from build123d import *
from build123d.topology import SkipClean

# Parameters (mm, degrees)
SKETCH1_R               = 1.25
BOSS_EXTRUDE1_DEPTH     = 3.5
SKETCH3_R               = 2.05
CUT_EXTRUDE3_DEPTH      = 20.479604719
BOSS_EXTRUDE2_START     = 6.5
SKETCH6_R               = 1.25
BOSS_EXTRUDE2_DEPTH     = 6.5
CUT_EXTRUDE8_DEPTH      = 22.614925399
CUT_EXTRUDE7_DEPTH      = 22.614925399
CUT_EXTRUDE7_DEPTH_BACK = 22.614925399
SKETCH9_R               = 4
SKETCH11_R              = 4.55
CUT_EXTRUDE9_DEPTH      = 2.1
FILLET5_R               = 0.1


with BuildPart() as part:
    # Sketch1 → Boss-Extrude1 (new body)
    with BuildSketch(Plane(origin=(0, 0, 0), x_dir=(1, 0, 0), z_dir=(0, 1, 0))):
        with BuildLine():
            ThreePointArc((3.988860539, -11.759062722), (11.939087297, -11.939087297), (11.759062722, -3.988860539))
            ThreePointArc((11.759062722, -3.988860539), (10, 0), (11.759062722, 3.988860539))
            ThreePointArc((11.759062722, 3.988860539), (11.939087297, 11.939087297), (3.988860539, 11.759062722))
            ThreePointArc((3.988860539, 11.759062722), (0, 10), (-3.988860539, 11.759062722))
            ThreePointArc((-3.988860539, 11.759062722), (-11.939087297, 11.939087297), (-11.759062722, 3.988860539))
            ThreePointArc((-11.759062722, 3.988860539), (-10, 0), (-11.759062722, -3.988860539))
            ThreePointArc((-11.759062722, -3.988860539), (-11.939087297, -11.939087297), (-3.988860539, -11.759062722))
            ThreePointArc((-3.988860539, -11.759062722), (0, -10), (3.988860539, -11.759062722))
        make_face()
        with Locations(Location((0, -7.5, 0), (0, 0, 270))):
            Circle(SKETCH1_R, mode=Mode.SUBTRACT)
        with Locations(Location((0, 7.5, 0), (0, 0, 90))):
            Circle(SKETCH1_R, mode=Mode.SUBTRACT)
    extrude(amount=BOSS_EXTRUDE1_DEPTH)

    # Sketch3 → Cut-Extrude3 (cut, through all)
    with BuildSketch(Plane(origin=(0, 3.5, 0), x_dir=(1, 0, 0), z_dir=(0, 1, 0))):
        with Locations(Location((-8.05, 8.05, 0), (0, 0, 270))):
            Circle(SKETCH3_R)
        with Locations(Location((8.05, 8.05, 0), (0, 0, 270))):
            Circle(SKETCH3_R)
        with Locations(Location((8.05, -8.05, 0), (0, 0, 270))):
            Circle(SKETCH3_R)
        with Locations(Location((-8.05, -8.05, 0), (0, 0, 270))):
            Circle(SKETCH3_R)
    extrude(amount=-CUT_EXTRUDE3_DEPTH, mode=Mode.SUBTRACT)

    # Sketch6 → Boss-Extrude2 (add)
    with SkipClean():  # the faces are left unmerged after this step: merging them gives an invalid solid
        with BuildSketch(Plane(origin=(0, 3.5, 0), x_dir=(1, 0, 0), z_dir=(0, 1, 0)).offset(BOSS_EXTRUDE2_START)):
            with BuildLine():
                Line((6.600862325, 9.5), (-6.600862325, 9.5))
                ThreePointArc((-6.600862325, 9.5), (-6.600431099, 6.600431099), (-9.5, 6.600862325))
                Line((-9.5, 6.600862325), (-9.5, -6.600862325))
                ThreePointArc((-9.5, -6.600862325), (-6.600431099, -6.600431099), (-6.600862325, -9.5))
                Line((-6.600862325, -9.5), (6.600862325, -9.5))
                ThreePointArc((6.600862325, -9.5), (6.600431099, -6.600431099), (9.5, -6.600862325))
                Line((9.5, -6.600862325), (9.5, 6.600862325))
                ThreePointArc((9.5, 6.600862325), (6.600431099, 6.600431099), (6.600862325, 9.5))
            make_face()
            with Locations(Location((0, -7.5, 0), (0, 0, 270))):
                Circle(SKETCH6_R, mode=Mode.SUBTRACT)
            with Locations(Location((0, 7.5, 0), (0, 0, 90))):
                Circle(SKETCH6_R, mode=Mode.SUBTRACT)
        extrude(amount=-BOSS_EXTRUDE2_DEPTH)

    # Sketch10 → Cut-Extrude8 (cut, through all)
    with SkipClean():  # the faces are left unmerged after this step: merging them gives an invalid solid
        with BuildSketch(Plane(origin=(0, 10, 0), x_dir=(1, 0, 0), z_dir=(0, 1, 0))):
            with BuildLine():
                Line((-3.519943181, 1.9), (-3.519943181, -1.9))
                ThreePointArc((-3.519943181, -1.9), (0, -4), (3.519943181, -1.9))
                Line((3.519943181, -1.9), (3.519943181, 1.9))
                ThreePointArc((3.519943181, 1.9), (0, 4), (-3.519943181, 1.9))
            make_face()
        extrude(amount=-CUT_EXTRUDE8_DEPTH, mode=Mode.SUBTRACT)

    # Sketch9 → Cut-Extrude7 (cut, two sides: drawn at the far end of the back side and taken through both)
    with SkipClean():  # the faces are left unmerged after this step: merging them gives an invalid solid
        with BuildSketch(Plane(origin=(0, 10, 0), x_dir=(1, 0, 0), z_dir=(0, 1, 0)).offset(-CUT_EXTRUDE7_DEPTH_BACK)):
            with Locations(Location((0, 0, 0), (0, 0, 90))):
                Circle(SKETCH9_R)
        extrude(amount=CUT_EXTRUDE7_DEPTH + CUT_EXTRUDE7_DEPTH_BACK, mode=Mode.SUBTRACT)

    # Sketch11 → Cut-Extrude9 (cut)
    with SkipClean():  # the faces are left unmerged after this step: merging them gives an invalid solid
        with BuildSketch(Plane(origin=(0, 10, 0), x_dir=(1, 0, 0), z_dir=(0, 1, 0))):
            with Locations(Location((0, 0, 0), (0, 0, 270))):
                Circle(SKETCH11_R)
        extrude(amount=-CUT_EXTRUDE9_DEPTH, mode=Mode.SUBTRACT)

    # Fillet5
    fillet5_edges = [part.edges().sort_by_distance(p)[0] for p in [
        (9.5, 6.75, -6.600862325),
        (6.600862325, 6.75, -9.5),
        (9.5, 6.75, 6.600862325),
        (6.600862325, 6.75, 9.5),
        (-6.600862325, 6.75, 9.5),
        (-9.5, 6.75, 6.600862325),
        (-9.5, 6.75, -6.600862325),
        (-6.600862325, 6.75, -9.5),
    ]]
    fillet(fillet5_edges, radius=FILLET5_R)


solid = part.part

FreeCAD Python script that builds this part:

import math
import FreeCAD as App
import Part
import Sketcher

V = App.Vector
Q = App.Units.Quantity


def edges_at(feature, points):
    """Names of the edges that pass closest to the given points."""
    edges = feature.Shape.Edges
    near = lambda p: min(range(len(edges)), key=lambda i: edges[i].distToShape(Part.Vertex(*p))[0])
    return sorted({f"Edge{near(p) + 1}" for p in points})

doc = App.newDocument("Part")
body = doc.addObject("PartDesign::Body", "Body")

sketch1 = doc.addObject("Sketcher::SketchObject", "Sketch")
body.addObject(sketch1)
sketch1.AttachmentSupport = (doc.XZ_Plane, [""])
sketch1.MapMode = "FlatFace"
sketch1.addGeometry(Part.ArcOfCircle(Part.Circle(V(8.1, 8.1, 0), V(0, 0, 1), 5.5), math.radians(-48), math.radians(138)), False)
sketch1.addGeometry(Part.ArcOfCircle(Part.Circle(V(15.4, 0, 0), V(0, 0, 1), 5.4), math.radians(132), math.radians(228)), False)
sketch1.addGeometry(Part.ArcOfCircle(Part.Circle(V(8.1, -8.1, 0), V(0, 0, 1), 5.5), math.radians(-138), math.radians(48)), False)
sketch1.addGeometry(Part.ArcOfCircle(Part.Circle(V(0, -15.4, 0), V(0, 0, 1), 5.4), math.radians(42), math.radians(138)), False)
sketch1.addGeometry(Part.ArcOfCircle(Part.Circle(V(-8.1, -8.1, 0), V(0, 0, 1), 5.5), math.radians(132), math.radians(318)), False)
sketch1.addGeometry(Part.ArcOfCircle(Part.Circle(V(-15.4, 0, 0), V(0, 0, 1), 5.4), math.radians(-48), math.radians(48)), False)
sketch1.addGeometry(Part.ArcOfCircle(Part.Circle(V(-8.1, 8.1, 0), V(0, 0, 1), 5.5), math.radians(42), math.radians(228)), False)
sketch1.addGeometry(Part.ArcOfCircle(Part.Circle(V(0, 15.4, 0), V(0, 0, 1), 5.4), math.radians(-138), math.radians(-42)), False)
sketch1.addGeometry(Part.Circle(V(0, 7.5, 0), V(0, 0, 1), 1.2), False)
sketch1.addGeometry(Part.Circle(V(0, -7.5, 0), V(0, 0, 1), 1.2), False)
sketch1.addConstraint(Sketcher.Constraint("Tangent", 0, 1, 1, 1))
sketch1.addConstraint(Sketcher.Constraint("Tangent", 1, 2, 2, 2))
sketch1.addConstraint(Sketcher.Constraint("Tangent", 2, 1, 3, 1))
sketch1.addConstraint(Sketcher.Constraint("Tangent", 3, 2, 4, 2))
sketch1.addConstraint(Sketcher.Constraint("Tangent", 4, 1, 5, 1))
sketch1.addConstraint(Sketcher.Constraint("Tangent", 5, 2, 6, 2))
sketch1.addConstraint(Sketcher.Constraint("Tangent", 6, 1, 7, 1))
sketch1.addConstraint(Sketcher.Constraint("Tangent", 7, 2, 0, 2))
sketch1.addConstraint(Sketcher.Constraint("Equal", 0, 2))
sketch1.addConstraint(Sketcher.Constraint("Equal", 1, 3))
sketch1.addConstraint(Sketcher.Constraint("Equal", 2, 4))
sketch1.addConstraint(Sketcher.Constraint("Equal", 3, 5))
sketch1.addConstraint(Sketcher.Constraint("Equal", 4, 6))
sketch1.addConstraint(Sketcher.Constraint("Equal", 5, 7))
sketch1.addConstraint(Sketcher.Constraint("Equal", 8, 9))
sketch1.addConstraint(Sketcher.Constraint("Symmetric", 0, 3, 4, 3, -1, 1))
sketch1.addConstraint(Sketcher.Constraint("Symmetric", 2, 3, 6, 3, -1, 1))
sketch1.addConstraint(Sketcher.Constraint("Symmetric", 8, 3, 9, 3, -1, 1))
sketch1.addConstraint(Sketcher.Constraint("Symmetric", 2, 3, 4, 3, -2))
sketch1.addConstraint(Sketcher.Constraint("PointOnObject", 8, 3, -2))
sketch1.addConstraint(Sketcher.Constraint("Diameter", 8, Q("2.5 mm")))
sketch1.addConstraint(Sketcher.Constraint("Radius", 0, Q("5.5 mm")))
sketch1.addConstraint(Sketcher.Constraint("DistanceY", 9, 3, 8, 3, Q("15 mm")))
sketch1.addConstraint(Sketcher.Constraint("DistanceY", 2, 3, 0, 3, Q("16.1 mm")))
sketch1.addConstraint(Sketcher.Constraint("DistanceX", 4, 3, 2, 3, Q("16.1 mm")))
sketch1.addConstraint(Sketcher.Constraint("Radius", 1, Q("5.402113 mm")))
pad1 = doc.addObject("PartDesign::Pad", "Pad")
body.addObject(pad1)
pad1.Profile = sketch1
pad1.Length = 3.5
pad1.Reversed = True

sketch2 = doc.addObject("Sketcher::SketchObject", "Sketch001")
body.addObject(sketch2)
sketch2.AttachmentSupport = (doc.XZ_Plane, [""])
sketch2.MapMode = "FlatFace"
sketch2.AttachmentOffset = App.Placement(V(0, 0, -3.5), App.Rotation())
sketch2.addGeometry(Part.Circle(V(-8.1, -8.1, 0), V(0, 0, 1), 2), False)
sketch2.addGeometry(Part.Circle(V(8.1, -8.1, 0), V(0, 0, 1), 2), False)
sketch2.addGeometry(Part.Circle(V(8.1, 8.1, 0), V(0, 0, 1), 2), False)
sketch2.addGeometry(Part.Circle(V(-8.1, 8.1, 0), V(0, 0, 1), 2), False)
sketch2.addConstraint(Sketcher.Constraint("Equal", 0, 1))
sketch2.addConstraint(Sketcher.Constraint("Equal", 1, 2))
sketch2.addConstraint(Sketcher.Constraint("Equal", 2, 3))
sketch2.addConstraint(Sketcher.Constraint("Symmetric", 0, 3, 2, 3, -1, 1))
sketch2.addConstraint(Sketcher.Constraint("Symmetric", 1, 3, 3, 3, -1, 1))
sketch2.addConstraint(Sketcher.Constraint("Symmetric", 0, 3, 1, 3, -2))
sketch2.addConstraint(Sketcher.Constraint("Diameter", 0, Q("4.1 mm")))
sketch2.addConstraint(Sketcher.Constraint("DistanceX", 0, 3, 1, 3, Q("16.1 mm")))
sketch2.addConstraint(Sketcher.Constraint("DistanceY", 1, 3, 2, 3, Q("16.1 mm")))
pocket1 = doc.addObject("PartDesign::Pocket", "Pocket")
body.addObject(pocket1)
pocket1.Profile = sketch2
pocket1.Type = "ThroughAll"
pocket1.Reversed = True

sketch3 = doc.addObject("Sketcher::SketchObject", "Sketch002")
body.addObject(sketch3)
sketch3.AttachmentSupport = (doc.XZ_Plane, [""])
sketch3.MapMode = "FlatFace"
sketch3.AttachmentOffset = App.Placement(V(0, 0, -10), App.Rotation())
sketch3.addGeometry(Part.LineSegment(V(6.6, -9.5, 0), V(-6.6, -9.5, 0)), False)
sketch3.addGeometry(Part.ArcOfCircle(Part.Circle(V(-8.1, -8.1, 0), V(0, 0, 1), 2), math.radians(-45), math.radians(135)), False)
sketch3.addGeometry(Part.LineSegment(V(-9.5, -6.6, 0), V(-9.5, 6.6, 0)), False)
sketch3.addGeometry(Part.ArcOfCircle(Part.Circle(V(-8.1, 8.1, 0), V(0, 0, 1), 2), math.radians(-135), math.radians(45)), False)
sketch3.addGeometry(Part.LineSegment(V(-6.6, 9.5, 0), V(6.6, 9.5, 0)), False)
sketch3.addGeometry(Part.ArcOfCircle(Part.Circle(V(8.1, 8.1, 0), V(0, 0, 1), 2), math.radians(135), math.radians(315)), False)
sketch3.addGeometry(Part.LineSegment(V(9.5, 6.6, 0), V(9.5, -6.6, 0)), False)
sketch3.addGeometry(Part.ArcOfCircle(Part.Circle(V(8.1, -8.1, 0), V(0, 0, 1), 2), math.radians(45), math.radians(225)), False)
sketch3.addGeometry(Part.Circle(V(0, 7.5, 0), V(0, 0, 1), 1.2), False)
sketch3.addGeometry(Part.Circle(V(0, -7.5, 0), V(0, 0, 1), 1.2), False)
sketch3.addConstraint(Sketcher.Constraint("Coincident", 0, 2, 1, 1))
sketch3.addConstraint(Sketcher.Constraint("Coincident", 1, 2, 2, 1))
sketch3.addConstraint(Sketcher.Constraint("Coincident", 2, 2, 3, 1))
sketch3.addConstraint(Sketcher.Constraint("Coincident", 3, 2, 4, 1))
sketch3.addConstraint(Sketcher.Constraint("Coincident", 4, 2, 5, 1))
sketch3.addConstraint(Sketcher.Constraint("Coincident", 5, 2, 6, 1))
sketch3.addConstraint(Sketcher.Constraint("Coincident", 6, 2, 7, 1))
sketch3.addConstraint(Sketcher.Constraint("Coincident", 7, 2, 0, 1))
sketch3.addConstraint(Sketcher.Constraint("Horizontal", 0))
sketch3.addConstraint(Sketcher.Constraint("Vertical", 2))
sketch3.addConstraint(Sketcher.Constraint("Horizontal", 4))
sketch3.addConstraint(Sketcher.Constraint("Vertical", 6))
sketch3.addConstraint(Sketcher.Constraint("Equal", 1, 3))
sketch3.addConstraint(Sketcher.Constraint("Equal", 3, 5))
sketch3.addConstraint(Sketcher.Constraint("Equal", 5, 7))
sketch3.addConstraint(Sketcher.Constraint("Equal", 8, 9))
sketch3.addConstraint(Sketcher.Constraint("Symmetric", 1, 3, 5, 3, -1, 1))
sketch3.addConstraint(Sketcher.Constraint("Symmetric", 3, 3, 7, 3, -1, 1))
sketch3.addConstraint(Sketcher.Constraint("Symmetric", 8, 3, 9, 3, -1, 1))
sketch3.addConstraint(Sketcher.Constraint("Symmetric", 3, 3, 5, 3, -2))
sketch3.addConstraint(Sketcher.Constraint("PointOnObject", 8, 3, -2))
sketch3.addConstraint(Sketcher.Constraint("Horizontal", 2, 2, 5, 2))
sketch3.addConstraint(Sketcher.Constraint("Vertical", 0, 2, 3, 2))
sketch3.addConstraint(Sketcher.Constraint("Equal", 4, 2))
sketch3.addConstraint(Sketcher.Constraint("Diameter", 8, Q("2.5 mm")))
sketch3.addConstraint(Sketcher.Constraint("Radius", 1, Q("2.05 mm")))
sketch3.addConstraint(Sketcher.Constraint("DistanceY", 9, 3, 8, 3, Q("15 mm")))
sketch3.addConstraint(Sketcher.Constraint("DistanceY", 0, 2, 9, 3, Q("2 mm")))
sketch3.addConstraint(Sketcher.Constraint("DistanceX", 1, 2, -1, 1, Q("9.5 mm")))
sketch3.addConstraint(Sketcher.Constraint("DistanceY", 1, 3, 3, 3, Q("16.1 mm")))
pad2 = doc.addObject("PartDesign::Pad", "Pad001")
body.addObject(pad2)
pad2.Profile = sketch3
pad2.Length = 6.5

sketch4 = doc.addObject("Sketcher::SketchObject", "Sketch003")
body.addObject(sketch4)
sketch4.AttachmentSupport = (doc.XZ_Plane, [""])
sketch4.MapMode = "FlatFace"
sketch4.AttachmentOffset = App.Placement(V(0, 0, -10), App.Rotation())
sketch4.addGeometry(Part.LineSegment(V(-3.5, -1.9, 0), V(-3.5, 1.9, 0)), False)
sketch4.addGeometry(Part.ArcOfCircle(Part.Circle(V(0, 0, 0), V(0, 0, 1), 4), math.radians(28), math.radians(152)), False)
sketch4.addGeometry(Part.LineSegment(V(3.5, 1.9, 0), V(3.5, -1.9, 0)), False)
sketch4.addGeometry(Part.ArcOfCircle(Part.Circle(V(0, 0, 0), V(0, 0, 1), 4), math.radians(-152), math.radians(-28)), False)
sketch4.addConstraint(Sketcher.Constraint("Coincident", 0, 2, 1, 2))
sketch4.addConstraint(Sketcher.Constraint("Coincident", 1, 1, 2, 1))
sketch4.addConstraint(Sketcher.Constraint("Coincident", 2, 2, 3, 2))
sketch4.addConstraint(Sketcher.Constraint("Coincident", 3, 1, 0, 1))
sketch4.addConstraint(Sketcher.Constraint("Vertical", 0))
sketch4.addConstraint(Sketcher.Constraint("Vertical", 2))
sketch4.addConstraint(Sketcher.Constraint("Coincident", 1, 3, -1, 1))
sketch4.addConstraint(Sketcher.Constraint("Coincident", 3, 3, -1, 1))
sketch4.addConstraint(Sketcher.Constraint("Equal", 1, 3))
sketch4.addConstraint(Sketcher.Constraint("Horizontal", 0, 2, 1, 1))
sketch4.addConstraint(Sketcher.Constraint("Radius", 1, Q("4 mm")))
sketch4.addConstraint(Sketcher.Constraint("DistanceY", 0, 1, 0, 2, Q("3.8 mm")))
pocket2 = doc.addObject("PartDesign::Pocket", "Pocket001")
body.addObject(pocket2)
pocket2.Profile = sketch4
pocket2.Type = "ThroughAll"
pocket2.Reversed = True

sketch5 = doc.addObject("Sketcher::SketchObject", "Sketch004")
body.addObject(sketch5)
sketch5.AttachmentSupport = (doc.XZ_Plane, [""])
sketch5.MapMode = "FlatFace"
sketch5.AttachmentOffset = App.Placement(V(0, 0, -10), App.Rotation())
sketch5.addGeometry(Part.Circle(V(0, 0, 0), V(0, 0, 1), 4), False)
sketch5.addConstraint(Sketcher.Constraint("Coincident", 0, 3, -1, 1))
sketch5.addConstraint(Sketcher.Constraint("Diameter", 0, Q("8 mm")))
pocket3 = doc.addObject("PartDesign::Pocket", "Pocket002")
body.addObject(pocket3)
pocket3.Profile = sketch5
pocket3.Type = "ThroughAll"
pocket3.Midplane = True

sketch6 = doc.addObject("Sketcher::SketchObject", "Sketch005")
body.addObject(sketch6)
sketch6.AttachmentSupport = (doc.XZ_Plane, [""])
sketch6.MapMode = "FlatFace"
sketch6.AttachmentOffset = App.Placement(V(0, 0, -10), App.Rotation())
sketch6.addGeometry(Part.Circle(V(0, 0, 0), V(0, 0, 1), 4.5), False)
sketch6.addConstraint(Sketcher.Constraint("Coincident", 0, 3, -1, 1))
sketch6.addConstraint(Sketcher.Constraint("Diameter", 0, Q("9.1 mm")))
pocket4 = doc.addObject("PartDesign::Pocket", "Pocket003")
body.addObject(pocket4)
pocket4.Profile = sketch6
pocket4.Length = 2.1
pocket4.Reversed = True
doc.recompute()

fillet = doc.addObject("PartDesign::Fillet", "Fillet")
body.addObject(fillet)
fillet.Base = (pocket4, edges_at(pocket4, [
    (9.5, 6.75, -6.601),
    (6.601, 6.75, -9.5),
    (9.5, 6.75, 6.601),
    (6.601, 6.75, 9.5),
    (-6.601, 6.75, 9.5),
    (-9.5, 6.75, 6.601),
    (-9.5, 6.75, -6.601),
    (-6.601, 6.75, -9.5),
]))
fillet.Radius = 0.1

doc.recompute()
